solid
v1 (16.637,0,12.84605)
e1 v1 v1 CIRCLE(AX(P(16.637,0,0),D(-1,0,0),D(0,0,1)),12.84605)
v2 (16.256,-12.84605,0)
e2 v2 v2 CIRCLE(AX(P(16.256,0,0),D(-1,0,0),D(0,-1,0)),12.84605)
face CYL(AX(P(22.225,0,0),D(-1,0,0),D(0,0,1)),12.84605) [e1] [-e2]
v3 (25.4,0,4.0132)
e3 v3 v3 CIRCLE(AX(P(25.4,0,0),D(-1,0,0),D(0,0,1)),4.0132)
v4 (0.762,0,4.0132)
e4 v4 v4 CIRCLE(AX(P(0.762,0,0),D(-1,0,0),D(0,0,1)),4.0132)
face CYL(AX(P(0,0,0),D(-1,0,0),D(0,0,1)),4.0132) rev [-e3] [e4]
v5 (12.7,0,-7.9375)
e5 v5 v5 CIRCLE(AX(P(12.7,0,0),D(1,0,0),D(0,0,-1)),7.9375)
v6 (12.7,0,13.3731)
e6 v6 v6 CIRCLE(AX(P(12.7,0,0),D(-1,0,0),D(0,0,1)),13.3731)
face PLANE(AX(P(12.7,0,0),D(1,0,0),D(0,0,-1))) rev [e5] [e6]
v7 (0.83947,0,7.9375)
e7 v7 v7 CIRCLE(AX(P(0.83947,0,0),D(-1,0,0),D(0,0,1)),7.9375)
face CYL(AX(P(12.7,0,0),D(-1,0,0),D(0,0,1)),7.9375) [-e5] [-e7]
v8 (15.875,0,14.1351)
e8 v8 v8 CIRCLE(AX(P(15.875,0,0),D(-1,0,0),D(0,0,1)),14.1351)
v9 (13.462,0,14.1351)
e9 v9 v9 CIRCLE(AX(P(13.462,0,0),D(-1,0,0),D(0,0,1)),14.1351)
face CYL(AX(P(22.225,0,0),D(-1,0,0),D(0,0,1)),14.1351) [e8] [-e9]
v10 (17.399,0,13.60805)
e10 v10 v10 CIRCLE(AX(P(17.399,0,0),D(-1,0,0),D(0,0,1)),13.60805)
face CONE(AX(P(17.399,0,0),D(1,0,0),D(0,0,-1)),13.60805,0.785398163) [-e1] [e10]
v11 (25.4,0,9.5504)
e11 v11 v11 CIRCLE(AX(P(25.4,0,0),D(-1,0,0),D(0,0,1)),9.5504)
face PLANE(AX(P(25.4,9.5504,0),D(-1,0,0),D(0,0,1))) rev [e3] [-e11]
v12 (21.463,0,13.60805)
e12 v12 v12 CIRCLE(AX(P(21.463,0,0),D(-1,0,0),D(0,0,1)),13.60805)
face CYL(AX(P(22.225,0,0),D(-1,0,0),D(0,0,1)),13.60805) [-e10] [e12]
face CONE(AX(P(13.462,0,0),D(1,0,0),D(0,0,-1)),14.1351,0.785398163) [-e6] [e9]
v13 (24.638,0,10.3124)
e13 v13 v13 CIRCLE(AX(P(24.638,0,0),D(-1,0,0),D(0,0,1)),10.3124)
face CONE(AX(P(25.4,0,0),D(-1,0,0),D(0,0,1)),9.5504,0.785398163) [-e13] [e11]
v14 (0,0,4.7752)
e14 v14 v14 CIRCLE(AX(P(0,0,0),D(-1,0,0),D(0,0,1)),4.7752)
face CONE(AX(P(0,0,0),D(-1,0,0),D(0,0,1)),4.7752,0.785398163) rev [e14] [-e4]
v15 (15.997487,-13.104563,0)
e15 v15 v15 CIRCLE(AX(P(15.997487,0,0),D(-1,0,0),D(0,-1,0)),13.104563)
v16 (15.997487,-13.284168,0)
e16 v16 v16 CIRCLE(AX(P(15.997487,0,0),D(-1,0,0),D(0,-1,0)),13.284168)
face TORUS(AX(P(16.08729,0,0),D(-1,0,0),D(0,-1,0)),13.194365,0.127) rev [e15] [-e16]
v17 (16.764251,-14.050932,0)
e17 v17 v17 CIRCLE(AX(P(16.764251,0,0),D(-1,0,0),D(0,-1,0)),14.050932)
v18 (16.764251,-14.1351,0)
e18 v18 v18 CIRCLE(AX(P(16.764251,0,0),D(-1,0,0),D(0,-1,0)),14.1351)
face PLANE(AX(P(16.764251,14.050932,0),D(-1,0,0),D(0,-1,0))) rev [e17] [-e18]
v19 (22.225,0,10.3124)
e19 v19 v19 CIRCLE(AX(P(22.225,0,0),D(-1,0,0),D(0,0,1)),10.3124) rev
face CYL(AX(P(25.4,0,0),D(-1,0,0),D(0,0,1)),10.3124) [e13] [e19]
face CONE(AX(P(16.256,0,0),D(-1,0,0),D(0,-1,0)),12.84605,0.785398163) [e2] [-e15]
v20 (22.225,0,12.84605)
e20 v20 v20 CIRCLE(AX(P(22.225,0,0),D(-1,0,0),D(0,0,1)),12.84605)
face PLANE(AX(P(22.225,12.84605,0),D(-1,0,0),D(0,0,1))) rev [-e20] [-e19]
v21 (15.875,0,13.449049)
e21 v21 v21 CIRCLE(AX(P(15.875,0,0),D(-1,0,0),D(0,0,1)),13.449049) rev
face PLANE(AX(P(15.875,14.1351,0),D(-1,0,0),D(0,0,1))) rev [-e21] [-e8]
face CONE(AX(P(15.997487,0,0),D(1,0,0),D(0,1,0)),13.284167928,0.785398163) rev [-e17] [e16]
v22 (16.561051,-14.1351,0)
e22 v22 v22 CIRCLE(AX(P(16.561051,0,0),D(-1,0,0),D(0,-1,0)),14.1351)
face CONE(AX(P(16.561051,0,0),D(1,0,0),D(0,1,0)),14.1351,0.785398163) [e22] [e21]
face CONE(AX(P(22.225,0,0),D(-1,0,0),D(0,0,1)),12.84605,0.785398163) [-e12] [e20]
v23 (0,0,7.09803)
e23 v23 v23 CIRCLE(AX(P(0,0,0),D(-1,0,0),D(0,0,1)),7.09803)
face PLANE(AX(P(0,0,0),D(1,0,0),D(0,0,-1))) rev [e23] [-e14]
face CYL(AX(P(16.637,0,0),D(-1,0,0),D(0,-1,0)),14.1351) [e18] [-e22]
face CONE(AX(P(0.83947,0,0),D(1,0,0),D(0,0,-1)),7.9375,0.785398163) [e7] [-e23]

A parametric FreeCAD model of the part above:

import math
import FreeCAD as App
import Part
import Sketcher

V = App.Vector
Q = App.Units.Quantity

doc = App.newDocument("Part")
body = doc.addObject("PartDesign::Body", "Body")

# Sketch on XY plane
sketch1 = body.newObject("Sketcher::SketchObject", "Sketch")
sketch1.AttachmentSupport = (doc.getObject("XY_Plane"), [""])
sketch1.MapMode = "FlatFace"
sketch1.addGeometry([
    Part.LineSegment(V(0, 7.1, 0), V(0, 0, 0)),  # 0
    Part.LineSegment(V(0, 0, 0), V(12.7, 0, 0)),  # 1
    Part.LineSegment(V(12.7, 0, 0), V(12.7, 7.9, 0)),  # 2
    Part.LineSegment(V(12.7, 7.9, 0), V(0.8, 7.9, 0)),  # 3
    Part.LineSegment(V(0.8, 7.9, 0), V(0, 7.1, 0)),  # 4
], False)
sketch1.addConstraint([
    Sketcher.Constraint("Coincident", 0, 2, 1, 1),
    Sketcher.Constraint("Coincident", 1, 2, 2, 1),
    Sketcher.Constraint("Coincident", 2, 2, 3, 1),
    Sketcher.Constraint("Coincident", 3, 2, 4, 1),
    Sketcher.Constraint("Coincident", 4, 2, 0, 1),
    Sketcher.Constraint("Vertical", 0),
    Sketcher.Constraint("Horizontal", 1),
    Sketcher.Constraint("Vertical", 2),
    Sketcher.Constraint("Horizontal", 3),
    Sketcher.Constraint("Coincident", 0, 2, -1, 1),
    Sketcher.Constraint("DistanceX", 1, 1, 1, 2, Q("0.5 in")),
    Sketcher.Constraint("Angle", 4, Q("-135 deg")),
    Sketcher.Constraint("DistanceY", 2, 1, 2, 2, Q("0.3125 in")),
    Sketcher.Constraint("DistanceX", 3, 2, 3, 1, Q("11.86053 mm")),
])
revolution = body.newObject("PartDesign::Revolution", "Revolution")
revolution.Profile = sketch1
revolution.ReferenceAxis = (sketch1, ["H_Axis"])
revolution.Angle = 360

# Sketch on XY plane
sketch2 = body.newObject("Sketcher::SketchObject", "Sketch001")
sketch2.AttachmentSupport = (doc.getObject("XY_Plane"), [""])
sketch2.MapMode = "FlatFace"
sketch2.addGeometry([
    Part.LineSegment(V(12.7, 13.4, 0), V(12.7, 0, 0)),  # 0
    Part.LineSegment(V(12.7, 0, 0), V(22.2, 0, 0)),  # 1
    Part.LineSegment(V(22.2, 0, 0), V(22.2, 12.8, 0)),  # 2
    Part.LineSegment(V(22.2, 12.8, 0), V(21.5, 13.6, 0)),  # 3
    Part.LineSegment(V(21.5, 13.6, 0), V(17.4, 13.6, 0)),  # 4
    Part.LineSegment(V(17.4, 13.6, 0), V(16.6, 12.8, 0)),  # 5
    Part.LineSegment(V(16.6, 12.8, 0), V(15.9, 12.8, 0)),  # 6
    Part.LineSegment(V(15.9, 12.8, 0), V(15.9, 14.1, 0)),  # 7
    Part.LineSegment(V(15.9, 14.1, 0), V(13.5, 14.1, 0)),  # 8
    Part.LineSegment(V(13.5, 14.1, 0), V(12.7, 13.4, 0)),  # 9
], False)
sketch2.addConstraint([
    Sketcher.Constraint("Coincident", 0, 2, 1, 1),
    Sketcher.Constraint("Coincident", 1, 2, 2, 1),
    Sketcher.Constraint("Coincident", 2, 2, 3, 1),
    Sketcher.Constraint("Coincident", 3, 2, 4, 1),
    Sketcher.Constraint("Coincident", 4, 2, 5, 1),
    Sketcher.Constraint("Coincident", 5, 2, 6, 1),
    Sketcher.Constraint("Coincident", 6, 2, 7, 1),
    Sketcher.Constraint("Coincident", 7, 2, 8, 1),
    Sketcher.Constraint("Coincident", 8, 2, 9, 1),
    Sketcher.Constraint("Coincident", 9, 2, 0, 1),
    Sketcher.Constraint("Vertical", 0),
    Sketcher.Constraint("Horizontal", 1),
    Sketcher.Constraint("Vertical", 2),
    Sketcher.Constraint("Horizontal", 4),
    Sketcher.Constraint("Horizontal", 6),
    Sketcher.Constraint("Vertical", 7),
    Sketcher.Constraint("Horizontal", 8),
    Sketcher.Constraint("PointOnObject", 0, 2, -1),
    Sketcher.Constraint("Perpendicular", 3, 5),
    Sketcher.Constraint("Parallel", 5, 9),
    Sketcher.Constraint("Horizontal", 2, 2, 5, 2),
    Sketcher.Constraint("Equal", 3, 5),
    Sketcher.Constraint("Equal", 5, 9),
    Sketcher.Constraint("DistanceX", 4, 2, 4, 1, Q("0.16 in")),
    Sketcher.Constraint("DistanceX", 6, 2, 6, 1, Q("0.03 in")),
    Sketcher.Constraint("DistanceX", -1, 1, 0, 2, Q("0.5 in")),
    Sketcher.Constraint("DistanceX", 1, 1, 1, 2, Q("0.375 in")),
    Sketcher.Constraint("DistanceX", 8, 2, 8, 1, Q("0.095 in")),
    Sketcher.Constraint("DistanceY", 0, 2, 0, 1, Q("0.5265 in")),
    Sketcher.Constraint("DistanceY", 2, 1, 2, 2, Q("12.84605 mm")),
])
revolution2 = body.newObject("PartDesign::Revolution", "Revolution001")
revolution2.Profile = sketch2
revolution2.ReferenceAxis = (sketch2, ["H_Axis"])
revolution2.Angle = 360

# Sketch on XY plane
sketch3 = body.newObject("Sketcher::SketchObject", "Sketch002")
sketch3.AttachmentSupport = (doc.getObject("XY_Plane"), [""])
sketch3.MapMode = "FlatFace"
sketch3.addGeometry([
    Part.LineSegment(V(22.2, 10.3, 0), V(22.2, 0, 0)),  # 0
    Part.LineSegment(V(22.2, 0, 0), V(25.4, 0, 0)),  # 1
    Part.LineSegment(V(25.4, 0, 0), V(25.4, 9.6, 0)),  # 2
    Part.LineSegment(V(25.4, 9.6, 0), V(24.6, 10.3, 0)),  # 3
    Part.LineSegment(V(24.6, 10.3, 0), V(22.2, 10.3, 0)),  # 4
], False)
sketch3.addConstraint([
    Sketcher.Constraint("Coincident", 0, 2, 1, 1),
    Sketcher.Constraint("Coincident", 1, 2, 2, 1),
    Sketcher.Constraint("Coincident", 2, 2, 3, 1),
    Sketcher.Constraint("Coincident", 3, 2, 4, 1),
    Sketcher.Constraint("Coincident", 4, 2, 0, 1),
    Sketcher.Constraint("Vertical", 0),
    Sketcher.Constraint("Horizontal", 1),
    Sketcher.Constraint("Vertical", 2),
    Sketcher.Constraint("Horizontal", 4),
    Sketcher.Constraint("PointOnObject", 0, 2, -1),
    Sketcher.Constraint("DistanceX", -1, 1, 1, 2, Q("1 in")),
    Sketcher.Constraint("Angle", 3, Q("135 deg")),
    Sketcher.Constraint("DistanceX", 1, 1, 1, 2, Q("0.125 in")),
    Sketcher.Constraint("DistanceX", 4, 2, 4, 1, Q("0.095 in")),
    Sketcher.Constraint("DistanceY", 0, 2, 0, 1, Q("0.406 in")),
])
revolution3 = body.newObject("PartDesign::Revolution", "Revolution002")
revolution3.Profile = sketch3
revolution3.ReferenceAxis = (sketch3, ["H_Axis"])
revolution3.Angle = 360

# Sketch on YZ plane
sketch4 = body.newObject("Sketcher::SketchObject", "Sketch003")
sketch4.AttachmentSupport = (doc.getObject("YZ_Plane"), [""])
sketch4.MapMode = "FlatFace"
sketch4.addGeometry(Part.Circle(V(0, 0, 0), V(0, 0, 1), 4), False)
sketch4.addConstraint([
    Sketcher.Constraint("Coincident", 0, 3, -1, 1),
    Sketcher.Constraint("Diameter", 0, Q("0.316 in")),
])
doc.recompute()
hole = body.newObject("PartDesign::Hole", "Hole")
hole.Profile = sketch4
hole.ThreadType = "None"
hole.Diameter = Q("0.316 in")
hole.DepthType = "Dimension"
hole.Depth = Q("1 in")
hole.DrillPoint = "Flat"
hole.HoleCutType = "Countersink"
hole.HoleCutDiameter = Q("0.376 in")
hole.HoleCutCountersinkAngle = 90
hole.Reversed = True

# Sketch on XY plane
sketch5 = body.newObject("Sketcher::SketchObject", "Sketch004")
sketch5.AttachmentSupport = (doc.getObject("XY_Plane"), [""])
sketch5.MapMode = "FlatFace"
sketch5.addGeometry([
    Part.LineSegment(V(15.88, 12.59, 0), V(16.64, 12.59, 0)),  # 0
    Part.LineSegment(V(16.64, 12.59, 0), V(16.64, 12.85, 0)),  # 1
    Part.LineSegment(V(16.64, 12.85, 0), V(16.26, 12.85, 0)),  # 2
    Part.LineSegment(V(16.26, 12.85, 0), V(16, 13.1, 0)),  # 3
    Part.ArcOfCircle(Part.Circle(V(16.09, 13.19, 0), V(0, 0, 1), 0.13), math.radians(135), math.radians(225)),  # 4
    Part.LineSegment(V(16, 13.28, 0), V(16.76, 14.05, 0)),  # 5
    Part.LineSegment(V(16.76, 14.05, 0), V(16.76, 14.14, 0)),  # 6
    Part.LineSegment(V(16.76, 14.14, 0), V(16.56, 14.14, 0)),  # 7
    Part.LineSegment(V(16.56, 14.14, 0), V(15.88, 13.45, 0)),  # 8
    Part.LineSegment(V(15.88, 13.45, 0), V(15.88, 12.59, 0)),  # 9
], False)
sketch5.addConstraint([
    Sketcher.Constraint("Coincident", 0, 2, 1, 1),
    Sketcher.Constraint("Coincident", 1, 2, 2, 1),
    Sketcher.Constraint("Coincident", 2, 2, 3, 1),
    Sketcher.Constraint("Tangent", 3, 2, 4, 2),
    Sketcher.Constraint("Tangent", 4, 1, 5, 1),
    Sketcher.Constraint("Coincident", 5, 2, 6, 1),
    Sketcher.Constraint("Coincident", 6, 2, 7, 1),
    Sketcher.Constraint("Coincident", 7, 2, 8, 1),
    Sketcher.Constraint("Coincident", 8, 2, 9, 1),
    Sketcher.Constraint("Coincident", 9, 2, 0, 1),
    Sketcher.Constraint("Horizontal", 0),
    Sketcher.Constraint("Vertical", 1),
    Sketcher.Constraint("Horizontal", 2),
    Sketcher.Constraint("Vertical", 6),
    Sketcher.Constraint("Horizontal", 7),
    Sketcher.Constraint("Vertical", 9),
    Sketcher.Constraint("Perpendicular", 3, 5),
    Sketcher.Constraint("Parallel", 5, 8),
    Sketcher.Constraint("Vertical", 3, 2, 4, 1),
    Sketcher.Constraint("Radius", 4, Q("0.005 in")),
    Sketcher.Constraint("DistanceX", 0, 1, 0, 2, Q("0.03 in")),
    Sketcher.Constraint("DistanceY", 1, 1, 1, 2, Q("0.01 in")),
    Sketcher.Constraint("DistanceX", 2, 2, 2, 1, Q("0.015 in")),
    Sketcher.Constraint("DistanceX", 7, 2, 7, 1, Q("0.008 in")),
    Sketcher.Constraint("DistanceX", -1, 1, 2, 2, Q("0.64 in")),
    Sketcher.Constraint("DistanceY", 9, 2, 9, 1, Q("0.856999 mm")),
    Sketcher.Constraint("DistanceY", -1, 1, 6, 2, Q("0.5565 in")),
    Sketcher.Constraint("DistanceY", 6, 1, 6, 2, Q("0.084168 mm")),
    Sketcher.Constraint("DistanceY", -1, 1, 0, 2, Q("12.59205 mm")),
])
revolution4 = body.newObject("PartDesign::Revolution", "Revolution003")
revolution4.Profile = sketch5
revolution4.ReferenceAxis = (sketch5, ["H_Axis"])
revolution4.Angle = 360

doc.recompute()
